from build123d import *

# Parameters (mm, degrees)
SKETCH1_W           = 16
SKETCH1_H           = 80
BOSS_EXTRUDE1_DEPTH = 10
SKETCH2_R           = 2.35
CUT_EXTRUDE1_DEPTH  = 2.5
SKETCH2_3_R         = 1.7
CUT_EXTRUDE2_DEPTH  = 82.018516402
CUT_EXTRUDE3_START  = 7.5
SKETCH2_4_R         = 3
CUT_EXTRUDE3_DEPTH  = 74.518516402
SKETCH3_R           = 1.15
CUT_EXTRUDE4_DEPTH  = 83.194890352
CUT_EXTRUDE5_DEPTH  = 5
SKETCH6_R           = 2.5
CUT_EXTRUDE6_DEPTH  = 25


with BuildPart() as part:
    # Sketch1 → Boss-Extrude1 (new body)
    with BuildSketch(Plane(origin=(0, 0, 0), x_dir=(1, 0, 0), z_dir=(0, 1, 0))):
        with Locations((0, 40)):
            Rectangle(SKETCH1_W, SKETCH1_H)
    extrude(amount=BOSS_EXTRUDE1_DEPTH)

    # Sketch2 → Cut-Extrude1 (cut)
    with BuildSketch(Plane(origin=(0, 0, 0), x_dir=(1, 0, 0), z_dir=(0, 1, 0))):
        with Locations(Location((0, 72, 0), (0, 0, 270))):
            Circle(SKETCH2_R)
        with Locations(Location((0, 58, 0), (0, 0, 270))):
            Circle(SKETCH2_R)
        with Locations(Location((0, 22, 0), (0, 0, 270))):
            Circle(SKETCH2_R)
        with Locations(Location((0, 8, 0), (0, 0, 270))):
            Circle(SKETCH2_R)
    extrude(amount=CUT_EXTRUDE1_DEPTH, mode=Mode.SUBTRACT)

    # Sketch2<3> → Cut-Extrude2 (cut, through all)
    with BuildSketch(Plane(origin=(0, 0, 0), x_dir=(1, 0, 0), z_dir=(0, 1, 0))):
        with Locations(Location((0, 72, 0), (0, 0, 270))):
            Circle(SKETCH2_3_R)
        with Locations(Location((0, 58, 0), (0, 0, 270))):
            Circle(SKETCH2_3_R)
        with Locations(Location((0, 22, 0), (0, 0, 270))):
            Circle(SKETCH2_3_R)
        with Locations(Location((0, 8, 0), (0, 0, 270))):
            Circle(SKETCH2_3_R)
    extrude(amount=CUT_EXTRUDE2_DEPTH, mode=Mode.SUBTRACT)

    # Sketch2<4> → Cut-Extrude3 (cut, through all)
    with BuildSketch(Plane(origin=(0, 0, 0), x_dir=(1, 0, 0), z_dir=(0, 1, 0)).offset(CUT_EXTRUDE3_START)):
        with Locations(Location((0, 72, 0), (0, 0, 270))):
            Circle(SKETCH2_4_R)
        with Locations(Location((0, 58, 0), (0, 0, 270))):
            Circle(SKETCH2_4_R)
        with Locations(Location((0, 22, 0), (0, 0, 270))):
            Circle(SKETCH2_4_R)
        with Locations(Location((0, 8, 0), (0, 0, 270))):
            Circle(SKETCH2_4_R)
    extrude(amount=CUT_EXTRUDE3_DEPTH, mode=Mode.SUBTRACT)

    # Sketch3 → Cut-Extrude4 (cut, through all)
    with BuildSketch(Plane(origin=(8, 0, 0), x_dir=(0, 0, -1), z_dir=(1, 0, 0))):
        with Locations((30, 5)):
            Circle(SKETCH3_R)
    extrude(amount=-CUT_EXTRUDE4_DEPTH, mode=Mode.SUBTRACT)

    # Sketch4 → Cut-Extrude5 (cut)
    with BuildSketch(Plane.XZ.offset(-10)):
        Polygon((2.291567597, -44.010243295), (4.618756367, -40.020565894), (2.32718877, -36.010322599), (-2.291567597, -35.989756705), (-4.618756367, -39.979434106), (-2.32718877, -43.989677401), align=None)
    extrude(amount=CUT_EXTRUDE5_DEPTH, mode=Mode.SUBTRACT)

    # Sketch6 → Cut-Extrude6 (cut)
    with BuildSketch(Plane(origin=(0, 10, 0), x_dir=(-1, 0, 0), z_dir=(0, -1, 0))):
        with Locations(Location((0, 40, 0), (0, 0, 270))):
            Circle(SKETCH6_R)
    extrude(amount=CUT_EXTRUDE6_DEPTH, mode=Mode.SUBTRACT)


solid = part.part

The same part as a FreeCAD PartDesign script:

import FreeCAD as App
import Part
import Sketcher
from FreeCAD import Vector
Q = App.Units.Quantity

doc = App.newDocument("Part")
body = doc.addObject("PartDesign::Body", "Body")

sketch1 = body.newObject("Sketcher::SketchObject", "Sketch")
sketch1.AttachmentSupport = (doc.getObject("XZ_Plane"), [""])
sketch1.MapMode = "FlatFace"
sketch1.addGeometry(Part.LineSegment(Vector(-8, -80, 0), Vector(-8, 0, 0)), False)
sketch1.addGeometry(Part.LineSegment(Vector(-8, 0, 0), Vector(8, 0, 0)), False)
sketch1.addGeometry(Part.LineSegment(Vector(8, 0, 0), Vector(8, -80, 0)), False)
sketch1.addGeometry(Part.LineSegment(Vector(8, -80, 0), Vector(-8, -80, 0)), False)
sketch1.addConstraint(Sketcher.Constraint("Coincident", 0, 2, 1, 1))
sketch1.addConstraint(Sketcher.Constraint("Coincident", 1, 2, 2, 1))
sketch1.addConstraint(Sketcher.Constraint("Coincident", 2, 2, 3, 1))
sketch1.addConstraint(Sketcher.Constraint("Coincident", 3, 2, 0, 1))
sketch1.addConstraint(Sketcher.Constraint("Vertical", 0))
sketch1.addConstraint(Sketcher.Constraint("Horizontal", 1))
sketch1.addConstraint(Sketcher.Constraint("Vertical", 2))
sketch1.addConstraint(Sketcher.Constraint("Horizontal", 3))
sketch1.addConstraint(Sketcher.Constraint("Symmetric", 0, 2, 1, 2, -1, 1))
sketch1.addConstraint(Sketcher.Constraint("DistanceX", 1, 1, 1, 2, Q("16 mm")))
sketch1.addConstraint(Sketcher.Constraint("DistanceY", 0, 1, 0, 2, Q("80 mm")))
pad1 = body.newObject("PartDesign::Pad", "Pad")
pad1.Profile = sketch1
pad1.Length = 10
pad1.Reversed = True

sketch2 = body.newObject("Sketcher::SketchObject", "Sketch001")
sketch2.AttachmentSupport = (doc.getObject("XZ_Plane"), [""])
sketch2.MapMode = "FlatFace"
sketch2.addGeometry(Part.Circle(Vector(0, -72, 0), Vector(0, 0, 1), 2.4), False)
sketch2.addGeometry(Part.Circle(Vector(0, -58, 0), Vector(0, 0, 1), 2.4), False)
sketch2.addGeometry(Part.Circle(Vector(0, -22, 0), Vector(0, 0, 1), 2.4), False)
sketch2.addGeometry(Part.Circle(Vector(0, -8, 0), Vector(0, 0, 1), 2.4), False)
sketch2.addConstraint(Sketcher.Constraint("Equal", 0, 1))
sketch2.addConstraint(Sketcher.Constraint("Equal", 1, 2))
sketch2.addConstraint(Sketcher.Constraint("Equal", 2, 3))
sketch2.addConstraint(Sketcher.Constraint("PointOnObject", 0, 3, -2))
sketch2.addConstraint(Sketcher.Constraint("PointOnObject", 1, 3, -2))
sketch2.addConstraint(Sketcher.Constraint("PointOnObject", 2, 3, -2))
sketch2.addConstraint(Sketcher.Constraint("PointOnObject", 3, 3, -2))
sketch2.addConstraint(Sketcher.Constraint("Diameter", 0, Q("4.7 mm")))
sketch2.addConstraint(Sketcher.Constraint("DistanceY", 0, 3, -1, 1, Q("72 mm")))
sketch2.addConstraint(Sketcher.Constraint("DistanceY", 1, 3, -1, 1, Q("58 mm")))
sketch2.addConstraint(Sketcher.Constraint("DistanceY", 2, 3, -1, 1, Q("22 mm")))
sketch2.addConstraint(Sketcher.Constraint("DistanceY", 3, 3, -1, 1, Q("8 mm")))
pocket1 = body.newObject("PartDesign::Pocket", "Pocket")
pocket1.Profile = sketch2
pocket1.Length = 2.5

sketch3 = body.newObject("Sketcher::SketchObject", "Sketch002")
sketch3.AttachmentSupport = (doc.getObject("XZ_Plane"), [""])
sketch3.MapMode = "FlatFace"
sketch3.addGeometry(Part.Circle(Vector(0, -72, 0), Vector(0, 0, 1), 1.7), False)
sketch3.addGeometry(Part.Circle(Vector(0, -58, 0), Vector(0, 0, 1), 1.7), False)
sketch3.addGeometry(Part.Circle(Vector(0, -22, 0), Vector(0, 0, 1), 1.7), False)
sketch3.addGeometry(Part.Circle(Vector(0, -8, 0), Vector(0, 0, 1), 1.7), False)
sketch3.addConstraint(Sketcher.Constraint("Equal", 0, 1))
sketch3.addConstraint(Sketcher.Constraint("Equal", 1, 2))
sketch3.addConstraint(Sketcher.Constraint("Equal", 2, 3))
sketch3.addConstraint(Sketcher.Constraint("PointOnObject", 0, 3, -2))
sketch3.addConstraint(Sketcher.Constraint("PointOnObject", 1, 3, -2))
sketch3.addConstraint(Sketcher.Constraint("PointOnObject", 2, 3, -2))
sketch3.addConstraint(Sketcher.Constraint("PointOnObject", 3, 3, -2))
sketch3.addConstraint(Sketcher.Constraint("Diameter", 0, Q("3.4 mm")))
sketch3.addConstraint(Sketcher.Constraint("DistanceY", 0, 3, -1, 1, Q("72 mm")))
sketch3.addConstraint(Sketcher.Constraint("DistanceY", 1, 3, -1, 1, Q("58 mm")))
sketch3.addConstraint(Sketcher.Constraint("DistanceY", 2, 3, -1, 1, Q("22 mm")))
sketch3.addConstraint(Sketcher.Constraint("DistanceY", 3, 3, -1, 1, Q("8 mm")))
pocket2 = body.newObject("PartDesign::Pocket", "Pocket001")
pocket2.Profile = sketch3
pocket2.Type = "ThroughAll"

sketch4 = body.newObject("Sketcher::SketchObject", "Sketch003")
sketch4.AttachmentSupport = (doc.getObject("XZ_Plane"), [""])
sketch4.MapMode = "FlatFace"
sketch4.AttachmentOffset = App.Placement(Vector(0, 0, -7.5), App.Rotation())
sketch4.addGeometry(Part.Circle(Vector(0, -72, 0), Vector(0, 0, 1), 3), False)
sketch4.addGeometry(Part.Circle(Vector(0, -58, 0), Vector(0, 0, 1), 3), False)
sketch4.addGeometry(Part.Circle(Vector(0, -22, 0), Vector(0, 0, 1), 3), False)
sketch4.addGeometry(Part.Circle(Vector(0, -8, 0), Vector(0, 0, 1), 3), False)
sketch4.addConstraint(Sketcher.Constraint("Equal", 0, 1))
sketch4.addConstraint(Sketcher.Constraint("Equal", 1, 2))
sketch4.addConstraint(Sketcher.Constraint("Equal", 2, 3))
sketch4.addConstraint(Sketcher.Constraint("PointOnObject", 0, 3, -2))
sketch4.addConstraint(Sketcher.Constraint("PointOnObject", 1, 3, -2))
sketch4.addConstraint(Sketcher.Constraint("PointOnObject", 2, 3, -2))
sketch4.addConstraint(Sketcher.Constraint("PointOnObject", 3, 3, -2))
sketch4.addConstraint(Sketcher.Constraint("Diameter", 0, Q("6 mm")))
sketch4.addConstraint(Sketcher.Constraint("DistanceY", 0, 3, -1, 1, Q("72 mm")))
sketch4.addConstraint(Sketcher.Constraint("DistanceY", 1, 3, -1, 1, Q("58 mm")))
sketch4.addConstraint(Sketcher.Constraint("DistanceY", 2, 3, -1, 1, Q("22 mm")))
sketch4.addConstraint(Sketcher.Constraint("DistanceY", 3, 3, -1, 1, Q("8 mm")))
pocket3 = body.newObject("PartDesign::Pocket", "Pocket002")
pocket3.Profile = sketch4
pocket3.Type = "ThroughAll"

sketch5 = body.newObject("Sketcher::SketchObject", "Sketch004")
sketch5.AttachmentSupport = (doc.getObject("YZ_Plane"), [""])
sketch5.MapMode = "FlatFace"
sketch5.AttachmentOffset = App.Placement(Vector(0, 0, 8), App.Rotation())
sketch5.addGeometry(Part.Circle(Vector(5, -30, 0), Vector(0, 0, 1), 1.1), False)
sketch5.addConstraint(Sketcher.Constraint("Diameter", 0, Q("2.3 mm")))
sketch5.addConstraint(Sketcher.Constraint("DistanceX", -1, 1, 0, 3, Q("5 mm")))
sketch5.addConstraint(Sketcher.Constraint("DistanceY", 0, 3, -1, 1, Q("30 mm")))
pocket4 = body.newObject("PartDesign::Pocket", "Pocket003")
pocket4.Profile = sketch5
pocket4.Type = "ThroughAll"

sketch6 = body.newObject("Sketcher::SketchObject", "Sketch005")
sketch6.AttachmentSupport = (doc.getObject("XZ_Plane"), [""])
sketch6.MapMode = "FlatFace"
sketch6.AttachmentOffset = App.Placement(Vector(0, 0, -10), App.Rotation())
sketch6.addGeometry(Part.LineSegment(Vector(2.3, -44, 0), Vector(4.6, -40, 0)), False)
sketch6.addGeometry(Part.LineSegment(Vector(4.6, -40, 0), Vector(2.3, -36, 0)), False)
sketch6.addGeometry(Part.LineSegment(Vector(2.3, -36, 0), Vector(-2.3, -36, 0)), False)
sketch6.addGeometry(Part.LineSegment(Vector(-2.3, -36, 0), Vector(-4.6, -40, 0)), False)
sketch6.addGeometry(Part.LineSegment(Vector(-4.6, -40, 0), Vector(-2.3, -44, 0)), False)
sketch6.addGeometry(Part.LineSegment(Vector(-2.3, -44, 0), Vector(2.3, -44, 0)), False)
sketch6.addConstraint(Sketcher.Constraint("Coincident", 0, 2, 1, 1))
sketch6.addConstraint(Sketcher.Constraint("Coincident", 1, 2, 2, 1))
sketch6.addConstraint(Sketcher.Constraint("Coincident", 2, 2, 3, 1))
sketch6.addConstraint(Sketcher.Constraint("Coincident", 3, 2, 4, 1))
sketch6.addConstraint(Sketcher.Constraint("Coincident", 4, 2, 5, 1))
sketch6.addConstraint(Sketcher.Constraint("Coincident", 5, 2, 0, 1))
sketch6.addConstraint(Sketcher.Constraint("Parallel", 0, 3))
sketch6.addConstraint(Sketcher.Constraint("Parallel", 1, 4))
sketch6.addConstraint(Sketcher.Constraint("Parallel", 2, 5))
sketch6.addConstraint(Sketcher.Constraint("Equal", 0, 1))
sketch6.addConstraint(Sketcher.Constraint("Equal", 1, 2))
sketch6.addConstraint(Sketcher.Constraint("Equal", 2, 3))
sketch6.addConstraint(Sketcher.Constraint("DistanceX", -1, 1, 1, 2, Q("2.327189 mm")))
sketch6.addConstraint(Sketcher.Constraint("DistanceX", 4, 2, -1, 1, Q("2.327189 mm")))
sketch6.addConstraint(Sketcher.Constraint("DistanceY", 0, 2, 2, 2, Q("4.030809 mm")))
sketch6.addConstraint(Sketcher.Constraint("DistanceX", 3, 2, 2, 2, Q("2.327189 mm")))
sketch6.addConstraint(Sketcher.Constraint("DistanceY", 3, 2, 1, 2, Q("3.969112 mm")))
sketch6.addConstraint(Sketcher.Constraint("DistanceY", 0, 2, -1, 1, Q("40.020566 mm")))
pocket5 = body.newObject("PartDesign::Pocket", "Pocket004")
pocket5.Profile = sketch6
pocket5.Length = 5
pocket5.Reversed = True

sketch7 = body.newObject("Sketcher::SketchObject", "Sketch006")
sketch7.AttachmentSupport = (doc.getObject("XZ_Plane"), [""])
sketch7.MapMode = "FlatFace"
sketch7.AttachmentOffset = App.Placement(Vector(0, 0, -10), App.Rotation())
sketch7.addGeometry(Part.Circle(Vector(0, -40, 0), Vector(0, 0, 1), 2.5), False)
sketch7.addConstraint(Sketcher.Constraint("PointOnObject", 0, 3, -2))
sketch7.addConstraint(Sketcher.Constraint("Diameter", 0, Q("5 mm")))
sketch7.addConstraint(Sketcher.Constraint("DistanceY", 0, 3, -1, 1, Q("40 mm")))
pocket6 = body.newObject("PartDesign::Pocket", "Pocket005")
pocket6.Profile = sketch7
pocket6.Length = 25
pocket6.Reversed = True

doc.recompute()
